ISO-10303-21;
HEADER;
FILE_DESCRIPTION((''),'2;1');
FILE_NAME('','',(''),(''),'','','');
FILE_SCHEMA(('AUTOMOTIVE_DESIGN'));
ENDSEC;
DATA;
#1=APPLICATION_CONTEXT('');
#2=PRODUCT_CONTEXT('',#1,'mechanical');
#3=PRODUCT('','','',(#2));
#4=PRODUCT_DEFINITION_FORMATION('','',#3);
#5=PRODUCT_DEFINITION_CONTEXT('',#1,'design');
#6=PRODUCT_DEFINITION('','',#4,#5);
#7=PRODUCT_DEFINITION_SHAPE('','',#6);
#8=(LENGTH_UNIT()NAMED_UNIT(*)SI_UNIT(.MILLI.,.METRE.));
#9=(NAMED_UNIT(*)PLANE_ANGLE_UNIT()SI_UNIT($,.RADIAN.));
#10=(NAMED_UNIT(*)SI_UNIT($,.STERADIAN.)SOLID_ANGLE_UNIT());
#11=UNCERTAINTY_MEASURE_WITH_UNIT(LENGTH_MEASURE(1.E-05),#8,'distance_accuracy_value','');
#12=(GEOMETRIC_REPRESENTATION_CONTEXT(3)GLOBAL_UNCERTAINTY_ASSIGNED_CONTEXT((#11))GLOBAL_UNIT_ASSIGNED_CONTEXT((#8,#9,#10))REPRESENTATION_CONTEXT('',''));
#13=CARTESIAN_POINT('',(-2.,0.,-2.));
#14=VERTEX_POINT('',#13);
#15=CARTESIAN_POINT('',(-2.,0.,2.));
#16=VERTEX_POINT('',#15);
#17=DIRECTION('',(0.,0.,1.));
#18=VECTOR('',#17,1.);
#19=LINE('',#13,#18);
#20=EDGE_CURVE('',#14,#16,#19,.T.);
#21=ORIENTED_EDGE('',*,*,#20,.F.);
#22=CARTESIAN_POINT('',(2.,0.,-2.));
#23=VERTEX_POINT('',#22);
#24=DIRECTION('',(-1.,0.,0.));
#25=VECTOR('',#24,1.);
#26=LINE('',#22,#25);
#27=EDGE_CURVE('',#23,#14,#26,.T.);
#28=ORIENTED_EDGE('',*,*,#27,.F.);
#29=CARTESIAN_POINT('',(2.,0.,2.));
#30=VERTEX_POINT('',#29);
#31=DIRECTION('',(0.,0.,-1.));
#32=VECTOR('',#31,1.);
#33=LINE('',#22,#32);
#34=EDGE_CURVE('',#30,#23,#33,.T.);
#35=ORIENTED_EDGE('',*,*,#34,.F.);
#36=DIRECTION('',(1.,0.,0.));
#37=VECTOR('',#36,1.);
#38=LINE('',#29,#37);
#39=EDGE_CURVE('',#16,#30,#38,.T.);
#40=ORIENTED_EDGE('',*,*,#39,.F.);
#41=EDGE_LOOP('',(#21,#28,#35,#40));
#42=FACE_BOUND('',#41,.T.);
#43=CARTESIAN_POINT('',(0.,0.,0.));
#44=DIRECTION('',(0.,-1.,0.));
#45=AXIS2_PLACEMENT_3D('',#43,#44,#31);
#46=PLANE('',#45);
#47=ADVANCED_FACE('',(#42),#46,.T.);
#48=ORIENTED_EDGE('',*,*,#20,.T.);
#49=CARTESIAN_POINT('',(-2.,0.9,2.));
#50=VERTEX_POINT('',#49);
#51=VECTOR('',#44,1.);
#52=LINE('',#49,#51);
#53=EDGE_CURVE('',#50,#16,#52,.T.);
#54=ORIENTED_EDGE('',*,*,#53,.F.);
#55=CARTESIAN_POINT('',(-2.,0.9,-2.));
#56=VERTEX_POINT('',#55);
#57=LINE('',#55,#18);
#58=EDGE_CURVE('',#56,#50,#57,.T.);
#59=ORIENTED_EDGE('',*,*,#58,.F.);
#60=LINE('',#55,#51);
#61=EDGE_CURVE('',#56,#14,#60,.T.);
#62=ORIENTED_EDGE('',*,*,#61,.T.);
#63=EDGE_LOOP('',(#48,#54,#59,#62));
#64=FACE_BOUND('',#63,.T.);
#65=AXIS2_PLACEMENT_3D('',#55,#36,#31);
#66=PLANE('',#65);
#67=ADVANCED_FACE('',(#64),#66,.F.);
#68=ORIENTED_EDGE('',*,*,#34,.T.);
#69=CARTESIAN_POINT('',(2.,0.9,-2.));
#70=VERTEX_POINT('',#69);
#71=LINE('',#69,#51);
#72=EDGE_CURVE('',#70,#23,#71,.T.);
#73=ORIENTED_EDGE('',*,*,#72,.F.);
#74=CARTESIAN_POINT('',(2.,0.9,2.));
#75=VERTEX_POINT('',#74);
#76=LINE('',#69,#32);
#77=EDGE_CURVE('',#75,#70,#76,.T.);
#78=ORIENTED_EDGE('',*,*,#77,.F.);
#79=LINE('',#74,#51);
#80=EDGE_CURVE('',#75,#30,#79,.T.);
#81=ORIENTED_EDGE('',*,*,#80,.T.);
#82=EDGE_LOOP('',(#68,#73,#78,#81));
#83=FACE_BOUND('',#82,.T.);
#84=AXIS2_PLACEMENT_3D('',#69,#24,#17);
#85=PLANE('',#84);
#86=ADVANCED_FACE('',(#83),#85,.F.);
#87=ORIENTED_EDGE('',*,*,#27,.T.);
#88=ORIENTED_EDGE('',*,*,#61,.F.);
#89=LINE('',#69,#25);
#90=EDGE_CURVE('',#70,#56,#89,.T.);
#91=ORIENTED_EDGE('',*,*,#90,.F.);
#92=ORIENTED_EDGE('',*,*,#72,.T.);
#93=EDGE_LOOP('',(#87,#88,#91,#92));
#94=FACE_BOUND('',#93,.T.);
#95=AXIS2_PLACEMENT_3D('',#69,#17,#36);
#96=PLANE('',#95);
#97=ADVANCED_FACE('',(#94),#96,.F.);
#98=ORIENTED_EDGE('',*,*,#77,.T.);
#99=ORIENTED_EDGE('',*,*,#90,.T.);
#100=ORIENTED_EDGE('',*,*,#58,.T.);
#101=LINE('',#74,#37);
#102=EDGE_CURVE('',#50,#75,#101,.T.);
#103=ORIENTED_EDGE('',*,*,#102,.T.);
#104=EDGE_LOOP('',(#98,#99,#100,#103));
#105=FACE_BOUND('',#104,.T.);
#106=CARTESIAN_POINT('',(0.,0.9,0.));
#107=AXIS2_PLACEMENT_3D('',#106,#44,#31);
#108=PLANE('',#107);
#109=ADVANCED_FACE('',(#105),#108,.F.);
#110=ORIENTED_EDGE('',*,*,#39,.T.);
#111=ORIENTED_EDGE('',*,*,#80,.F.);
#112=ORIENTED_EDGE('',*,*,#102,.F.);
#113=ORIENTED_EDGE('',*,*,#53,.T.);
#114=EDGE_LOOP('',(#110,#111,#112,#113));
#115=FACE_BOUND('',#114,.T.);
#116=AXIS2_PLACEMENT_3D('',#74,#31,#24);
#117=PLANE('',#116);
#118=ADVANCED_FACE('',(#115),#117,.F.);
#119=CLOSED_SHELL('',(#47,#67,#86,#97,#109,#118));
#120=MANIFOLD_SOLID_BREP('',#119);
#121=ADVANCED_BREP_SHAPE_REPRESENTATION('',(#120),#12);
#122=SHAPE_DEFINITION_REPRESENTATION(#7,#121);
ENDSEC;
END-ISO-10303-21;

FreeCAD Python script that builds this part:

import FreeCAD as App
import Part
import Sketcher

V = App.Vector

doc = App.newDocument("Part")
body = doc.addObject("PartDesign::Body", "Body")

sketch1 = body.newObject("Sketcher::SketchObject", "Sketch")
sketch1.AttachmentSupport = (doc.getObject("XZ_Plane"), [""])
sketch1.MapMode = "FlatFace"
sketch1.addGeometry(Part.LineSegment(V(-2, -2, 0), V(-2, 2, 0)), False)
sketch1.addGeometry(Part.LineSegment(V(-2, 2, 0), V(2, 2, 0)), False)
sketch1.addGeometry(Part.LineSegment(V(2, 2, 0), V(2, -2, 0)), False)
sketch1.addGeometry(Part.LineSegment(V(2, -2, 0), V(-2, -2, 0)), False)
sketch1.addConstraint(Sketcher.Constraint("Coincident", 0, 2, 1, 1))
sketch1.addConstraint(Sketcher.Constraint("Coincident", 1, 2, 2, 1))
sketch1.addConstraint(Sketcher.Constraint("Coincident", 2, 2, 3, 1))
sketch1.addConstraint(Sketcher.Constraint("Coincident", 3, 2, 0, 1))
sketch1.addConstraint(Sketcher.Constraint("Vertical", 0))
sketch1.addConstraint(Sketcher.Constraint("Horizontal", 1))
sketch1.addConstraint(Sketcher.Constraint("Vertical", 2))
sketch1.addConstraint(Sketcher.Constraint("Horizontal", 3))
sketch1.addConstraint(Sketcher.Constraint("Symmetric", 0, 2, 2, 2, -1, 1))
sketch1.addConstraint(Sketcher.Constraint("Equal", 3, 0))
sketch1.addConstraint(Sketcher.Constraint("DistanceX", 1, 1, 1, 2, 4.0))
pad1 = body.newObject("PartDesign::Pad", "Pad")
pad1.Profile = sketch1
pad1.Length = 0.9
pad1.Reversed = True

doc.recompute()
